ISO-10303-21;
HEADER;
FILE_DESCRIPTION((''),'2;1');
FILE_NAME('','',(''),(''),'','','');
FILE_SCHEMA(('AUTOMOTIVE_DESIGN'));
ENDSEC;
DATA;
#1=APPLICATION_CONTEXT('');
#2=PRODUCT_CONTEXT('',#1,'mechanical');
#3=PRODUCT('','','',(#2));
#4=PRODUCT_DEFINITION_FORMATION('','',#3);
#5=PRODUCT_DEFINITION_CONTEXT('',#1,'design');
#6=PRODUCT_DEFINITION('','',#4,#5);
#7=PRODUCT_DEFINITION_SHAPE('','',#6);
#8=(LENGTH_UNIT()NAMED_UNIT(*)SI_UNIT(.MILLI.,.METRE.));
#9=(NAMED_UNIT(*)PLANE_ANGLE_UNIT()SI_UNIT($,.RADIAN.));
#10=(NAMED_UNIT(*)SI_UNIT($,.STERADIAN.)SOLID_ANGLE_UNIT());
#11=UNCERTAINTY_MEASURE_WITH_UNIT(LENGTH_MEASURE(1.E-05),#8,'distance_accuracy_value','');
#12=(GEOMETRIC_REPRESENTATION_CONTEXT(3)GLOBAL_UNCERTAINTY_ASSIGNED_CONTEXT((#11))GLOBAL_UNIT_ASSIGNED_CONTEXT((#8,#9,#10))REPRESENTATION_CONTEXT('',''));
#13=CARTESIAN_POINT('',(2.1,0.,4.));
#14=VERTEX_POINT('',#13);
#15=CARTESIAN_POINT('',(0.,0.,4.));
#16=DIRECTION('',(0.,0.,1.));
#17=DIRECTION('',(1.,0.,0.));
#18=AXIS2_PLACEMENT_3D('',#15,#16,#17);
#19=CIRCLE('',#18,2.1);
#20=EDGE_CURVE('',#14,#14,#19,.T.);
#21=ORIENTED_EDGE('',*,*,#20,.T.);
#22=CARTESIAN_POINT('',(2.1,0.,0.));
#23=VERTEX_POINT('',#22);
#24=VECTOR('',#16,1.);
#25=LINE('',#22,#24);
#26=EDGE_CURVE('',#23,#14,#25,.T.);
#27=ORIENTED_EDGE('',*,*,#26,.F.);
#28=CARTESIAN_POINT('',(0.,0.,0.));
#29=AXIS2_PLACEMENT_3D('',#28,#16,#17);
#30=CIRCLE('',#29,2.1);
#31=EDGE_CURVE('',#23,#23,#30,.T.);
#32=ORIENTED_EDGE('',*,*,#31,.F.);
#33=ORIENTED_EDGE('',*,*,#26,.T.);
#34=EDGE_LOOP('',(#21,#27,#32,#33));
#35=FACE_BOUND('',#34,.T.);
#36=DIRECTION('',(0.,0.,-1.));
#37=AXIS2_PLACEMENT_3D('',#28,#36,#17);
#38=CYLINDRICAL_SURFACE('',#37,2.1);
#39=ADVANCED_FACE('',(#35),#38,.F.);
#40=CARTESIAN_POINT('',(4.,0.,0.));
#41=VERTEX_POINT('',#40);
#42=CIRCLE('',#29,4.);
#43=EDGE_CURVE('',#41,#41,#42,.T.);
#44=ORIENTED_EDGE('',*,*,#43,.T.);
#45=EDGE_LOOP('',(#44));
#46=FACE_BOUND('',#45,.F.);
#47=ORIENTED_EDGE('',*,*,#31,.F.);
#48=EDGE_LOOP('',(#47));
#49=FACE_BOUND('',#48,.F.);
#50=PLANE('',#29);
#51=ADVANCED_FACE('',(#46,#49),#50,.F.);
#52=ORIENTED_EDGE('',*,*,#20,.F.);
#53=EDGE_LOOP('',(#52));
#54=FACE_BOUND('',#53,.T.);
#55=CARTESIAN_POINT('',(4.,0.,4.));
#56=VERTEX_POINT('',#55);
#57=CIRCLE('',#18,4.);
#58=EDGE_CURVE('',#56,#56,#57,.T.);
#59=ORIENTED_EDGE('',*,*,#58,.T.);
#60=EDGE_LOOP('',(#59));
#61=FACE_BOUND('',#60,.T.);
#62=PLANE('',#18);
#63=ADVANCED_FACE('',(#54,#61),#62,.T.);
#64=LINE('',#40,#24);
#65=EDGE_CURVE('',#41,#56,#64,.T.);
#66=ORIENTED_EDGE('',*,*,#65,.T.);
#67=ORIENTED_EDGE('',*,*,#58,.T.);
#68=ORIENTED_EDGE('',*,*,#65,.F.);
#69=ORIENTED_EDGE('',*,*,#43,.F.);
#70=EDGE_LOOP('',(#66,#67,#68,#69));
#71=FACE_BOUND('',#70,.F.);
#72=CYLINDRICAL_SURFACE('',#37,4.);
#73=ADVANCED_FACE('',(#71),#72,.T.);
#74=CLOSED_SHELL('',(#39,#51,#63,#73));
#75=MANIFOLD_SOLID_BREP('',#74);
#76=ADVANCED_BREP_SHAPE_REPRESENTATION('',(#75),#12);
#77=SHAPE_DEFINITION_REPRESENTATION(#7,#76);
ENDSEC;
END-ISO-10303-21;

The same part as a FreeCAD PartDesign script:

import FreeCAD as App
import Part
import Sketcher
from FreeCAD import Vector

doc = App.newDocument("Part")
body = doc.addObject("PartDesign::Body", "Body")

# Sketch on XY plane
sketch1 = doc.addObject("Sketcher::SketchObject", "Sketch")
body.addObject(sketch1)
sketch1.AttachmentSupport = (doc.XY_Plane, [""])
sketch1.MapMode = "FlatFace"
sketch1.addGeometry([
    Part.Circle(Vector(0, 0, 0), Vector(0, 0, 1), 4),
    Part.Circle(Vector(0, 0, 0), Vector(0, 0, 1), 2.1),
], False)
sketch1.addConstraint([
    Sketcher.Constraint("Coincident", 0, 3, -1, 1),
    Sketcher.Constraint("Coincident", 1, 3, -1, 1),
    Sketcher.Constraint("Diameter", 0, 8.0),
    Sketcher.Constraint("Diameter", 1, 4.2),
])
pad1 = doc.addObject("PartDesign::Pad", "Pad")
body.addObject(pad1)
pad1.Profile = sketch1
pad1.Length = 4

doc.recompute()
